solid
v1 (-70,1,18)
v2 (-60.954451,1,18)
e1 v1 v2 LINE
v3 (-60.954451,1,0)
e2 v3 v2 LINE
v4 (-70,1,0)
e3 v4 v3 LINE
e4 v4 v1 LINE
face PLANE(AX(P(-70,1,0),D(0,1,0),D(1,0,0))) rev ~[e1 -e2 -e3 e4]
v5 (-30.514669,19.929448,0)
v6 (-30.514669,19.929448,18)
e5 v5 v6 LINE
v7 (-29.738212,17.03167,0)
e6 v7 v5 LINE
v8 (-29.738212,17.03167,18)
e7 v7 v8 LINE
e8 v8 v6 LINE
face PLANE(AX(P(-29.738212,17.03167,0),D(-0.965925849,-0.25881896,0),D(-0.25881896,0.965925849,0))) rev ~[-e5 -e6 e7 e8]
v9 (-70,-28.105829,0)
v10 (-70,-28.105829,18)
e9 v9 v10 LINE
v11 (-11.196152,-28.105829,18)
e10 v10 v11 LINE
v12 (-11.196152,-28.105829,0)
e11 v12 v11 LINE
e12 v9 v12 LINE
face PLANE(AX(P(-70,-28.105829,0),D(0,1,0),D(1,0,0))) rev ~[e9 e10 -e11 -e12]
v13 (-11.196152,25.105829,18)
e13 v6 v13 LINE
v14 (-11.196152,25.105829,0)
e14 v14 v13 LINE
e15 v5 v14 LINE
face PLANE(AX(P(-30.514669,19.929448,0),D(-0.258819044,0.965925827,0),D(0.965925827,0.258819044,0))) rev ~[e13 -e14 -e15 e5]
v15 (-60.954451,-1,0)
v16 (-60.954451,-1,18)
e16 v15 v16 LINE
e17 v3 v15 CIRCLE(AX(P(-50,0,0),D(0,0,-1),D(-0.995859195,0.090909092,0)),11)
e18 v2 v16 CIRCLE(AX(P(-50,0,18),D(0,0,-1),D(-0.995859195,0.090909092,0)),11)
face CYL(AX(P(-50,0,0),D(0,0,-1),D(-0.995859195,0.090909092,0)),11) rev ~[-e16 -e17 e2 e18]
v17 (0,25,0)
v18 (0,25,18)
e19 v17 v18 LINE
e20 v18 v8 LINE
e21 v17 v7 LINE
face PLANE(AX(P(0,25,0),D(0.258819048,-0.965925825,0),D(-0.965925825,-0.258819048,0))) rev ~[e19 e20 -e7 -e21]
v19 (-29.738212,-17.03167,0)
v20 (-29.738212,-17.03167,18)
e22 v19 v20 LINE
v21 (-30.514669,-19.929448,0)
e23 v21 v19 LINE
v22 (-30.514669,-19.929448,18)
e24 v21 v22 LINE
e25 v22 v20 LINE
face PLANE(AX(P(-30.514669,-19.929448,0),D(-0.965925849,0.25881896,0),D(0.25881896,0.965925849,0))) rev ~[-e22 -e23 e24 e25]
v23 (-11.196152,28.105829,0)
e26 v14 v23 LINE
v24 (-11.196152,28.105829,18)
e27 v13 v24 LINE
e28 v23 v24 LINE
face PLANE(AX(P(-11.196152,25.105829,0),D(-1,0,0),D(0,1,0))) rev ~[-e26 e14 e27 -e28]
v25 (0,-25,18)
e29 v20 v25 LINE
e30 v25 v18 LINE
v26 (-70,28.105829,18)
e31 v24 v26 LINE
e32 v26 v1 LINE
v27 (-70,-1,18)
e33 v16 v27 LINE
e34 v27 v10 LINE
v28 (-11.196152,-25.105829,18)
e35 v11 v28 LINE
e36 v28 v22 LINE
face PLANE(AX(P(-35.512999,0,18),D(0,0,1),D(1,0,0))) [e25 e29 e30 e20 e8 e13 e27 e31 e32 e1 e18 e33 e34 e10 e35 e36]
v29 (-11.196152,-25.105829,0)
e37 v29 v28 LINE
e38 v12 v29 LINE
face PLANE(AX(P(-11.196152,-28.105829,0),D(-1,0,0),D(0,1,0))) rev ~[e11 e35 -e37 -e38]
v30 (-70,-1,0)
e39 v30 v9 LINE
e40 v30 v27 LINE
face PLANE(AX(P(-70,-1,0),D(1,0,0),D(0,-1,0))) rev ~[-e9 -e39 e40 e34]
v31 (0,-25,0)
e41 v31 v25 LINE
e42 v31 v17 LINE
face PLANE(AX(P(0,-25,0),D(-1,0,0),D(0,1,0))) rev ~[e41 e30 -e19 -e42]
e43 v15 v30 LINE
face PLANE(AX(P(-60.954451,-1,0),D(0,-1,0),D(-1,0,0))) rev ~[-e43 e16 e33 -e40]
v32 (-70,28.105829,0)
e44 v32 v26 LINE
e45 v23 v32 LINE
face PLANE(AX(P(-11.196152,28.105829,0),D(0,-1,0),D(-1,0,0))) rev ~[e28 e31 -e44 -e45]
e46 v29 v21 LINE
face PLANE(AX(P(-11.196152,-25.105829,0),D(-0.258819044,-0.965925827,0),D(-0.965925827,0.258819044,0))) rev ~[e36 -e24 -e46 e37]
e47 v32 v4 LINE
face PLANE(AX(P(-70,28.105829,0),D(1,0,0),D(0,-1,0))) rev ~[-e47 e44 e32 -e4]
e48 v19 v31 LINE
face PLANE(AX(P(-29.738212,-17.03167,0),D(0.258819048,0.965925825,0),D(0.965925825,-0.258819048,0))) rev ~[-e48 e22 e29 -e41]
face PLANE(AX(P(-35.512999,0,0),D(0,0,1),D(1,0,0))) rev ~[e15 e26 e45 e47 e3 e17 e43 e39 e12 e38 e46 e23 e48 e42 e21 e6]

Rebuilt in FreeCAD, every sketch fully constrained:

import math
import FreeCAD as App
import Part
import Sketcher

V = App.Vector
Q = App.Units.Quantity

doc = App.newDocument("Part")
body = doc.addObject("PartDesign::Body", "Body")

# Sketch on XY plane
sketch1 = body.newObject("Sketcher::SketchObject", "Sketch")
sketch1.AttachmentSupport = (doc.getObject("XY_Plane"), [""])
sketch1.MapMode = "FlatFace"
sketch1.addGeometry(Part.LineSegment(V(-70, 28.1, 0), V(-70, 1, 0)), False)
sketch1.addGeometry(Part.LineSegment(V(-70, 1, 0), V(-61, 1, 0)), False)
sketch1.addGeometry(Part.ArcOfCircle(Part.Circle(V(-50, 0, 0), V(0, 0, 1), 11), math.radians(-175), math.radians(175)), False)
sketch1.addGeometry(Part.LineSegment(V(-61, -1, 0), V(-70, -1, 0)), False)
sketch1.addGeometry(Part.LineSegment(V(-70, -1, 0), V(-70, -28.1, 0)), False)
sketch1.addGeometry(Part.LineSegment(V(-70, -28.1, 0), V(-11.2, -28.1, 0)), False)
sketch1.addGeometry(Part.LineSegment(V(-11.2, -28.1, 0), V(-11.2, -25.1, 0)), False)
sketch1.addGeometry(Part.LineSegment(V(-11.2, -25.1, 0), V(-30.5, -19.9, 0)), False)
sketch1.addGeometry(Part.LineSegment(V(-30.5, -19.9, 0), V(-29.7, -17, 0)), False)
sketch1.addGeometry(Part.LineSegment(V(-29.7, -17, 0), V(0, -25, 0)), False)
sketch1.addGeometry(Part.LineSegment(V(0, -25, 0), V(0, 25, 0)), False)
sketch1.addGeometry(Part.LineSegment(V(0, 25, 0), V(-29.7, 17, 0)), False)
sketch1.addGeometry(Part.LineSegment(V(-29.7, 17, 0), V(-30.5, 19.9, 0)), False)
sketch1.addGeometry(Part.LineSegment(V(-30.5, 19.9, 0), V(-11.2, 25.1, 0)), False)
sketch1.addGeometry(Part.LineSegment(V(-11.2, 25.1, 0), V(-11.2, 28.1, 0)), False)
sketch1.addGeometry(Part.LineSegment(V(-11.2, 28.1, 0), V(-70, 28.1, 0)), False)
sketch1.addConstraint(Sketcher.Constraint("Coincident", 0, 2, 1, 1))
sketch1.addConstraint(Sketcher.Constraint("Coincident", 1, 2, 2, 2))
sketch1.addConstraint(Sketcher.Constraint("Coincident", 2, 1, 3, 1))
sketch1.addConstraint(Sketcher.Constraint("Coincident", 3, 2, 4, 1))
sketch1.addConstraint(Sketcher.Constraint("Coincident", 4, 2, 5, 1))
sketch1.addConstraint(Sketcher.Constraint("Coincident", 5, 2, 6, 1))
sketch1.addConstraint(Sketcher.Constraint("Coincident", 6, 2, 7, 1))
sketch1.addConstraint(Sketcher.Constraint("Coincident", 7, 2, 8, 1))
sketch1.addConstraint(Sketcher.Constraint("Coincident", 8, 2, 9, 1))
sketch1.addConstraint(Sketcher.Constraint("Coincident", 9, 2, 10, 1))
sketch1.addConstraint(Sketcher.Constraint("Coincident", 10, 2, 11, 1))
sketch1.addConstraint(Sketcher.Constraint("Coincident", 11, 2, 12, 1))
sketch1.addConstraint(Sketcher.Constraint("Coincident", 12, 2, 13, 1))
sketch1.addConstraint(Sketcher.Constraint("Coincident", 13, 2, 14, 1))
sketch1.addConstraint(Sketcher.Constraint("Coincident", 14, 2, 15, 1))
sketch1.addConstraint(Sketcher.Constraint("Coincident", 15, 2, 0, 1))
sketch1.addConstraint(Sketcher.Constraint("Vertical", 0))
sketch1.addConstraint(Sketcher.Constraint("Horizontal", 1))
sketch1.addConstraint(Sketcher.Constraint("Horizontal", 3))
sketch1.addConstraint(Sketcher.Constraint("Vertical", 4))
sketch1.addConstraint(Sketcher.Constraint("Horizontal", 5))
sketch1.addConstraint(Sketcher.Constraint("Vertical", 6))
sketch1.addConstraint(Sketcher.Constraint("Vertical", 10))
sketch1.addConstraint(Sketcher.Constraint("Vertical", 14))
sketch1.addConstraint(Sketcher.Constraint("Horizontal", 15))
sketch1.addConstraint(Sketcher.Constraint("Symmetric", 9, 2, 10, 2, -1, 1))
sketch1.addConstraint(Sketcher.Constraint("Symmetric", 1, 2, 2, 1, -1))
sketch1.addConstraint(Sketcher.Constraint("Symmetric", 8, 2, 11, 2, -1))
sketch1.addConstraint(Sketcher.Constraint("Symmetric", 7, 2, 12, 2, -1))
sketch1.addConstraint(Sketcher.Constraint("Symmetric", 6, 2, 13, 2, -1))
sketch1.addConstraint(Sketcher.Constraint("Symmetric", 4, 2, 15, 2, -1))
sketch1.addConstraint(Sketcher.Constraint("Perpendicular", 7, 8))
sketch1.addConstraint(Sketcher.Constraint("Perpendicular", 8, 9))
sketch1.addConstraint(Sketcher.Constraint("Radius", 2, Q("11 mm")))
sketch1.addConstraint(Sketcher.Constraint("DistanceY", 6, 1, 6, 2, Q("3 mm")))
sketch1.addConstraint(Sketcher.Constraint("DistanceY", 10, 1, 10, 2, Q("50 mm")))
sketch1.addConstraint(Sketcher.Constraint("Angle", 7, Q("165 deg")))
sketch1.addConstraint(Sketcher.Constraint("Distance", 7, Q("20 mm")))
sketch1.addConstraint(Sketcher.Constraint("Distance", 8, Q("3 mm")))
sketch1.addConstraint(Sketcher.Constraint("DistanceX", 2, 3, -1, 1, Q("50 mm")))
sketch1.addConstraint(Sketcher.Constraint("DistanceX", 0, 2, -1, 1, Q("70 mm")))
sketch1.addConstraint(Sketcher.Constraint("DistanceY", -1, 1, 0, 2, Q("1 mm")))
sketch1.addConstraint(Sketcher.Constraint("DistanceX", 5, 1, 5, 2, Q("58.803848 mm")))
pad1 = body.newObject("PartDesign::Pad", "Pad")
pad1.Profile = sketch1
pad1.Length = 18

doc.recompute()
